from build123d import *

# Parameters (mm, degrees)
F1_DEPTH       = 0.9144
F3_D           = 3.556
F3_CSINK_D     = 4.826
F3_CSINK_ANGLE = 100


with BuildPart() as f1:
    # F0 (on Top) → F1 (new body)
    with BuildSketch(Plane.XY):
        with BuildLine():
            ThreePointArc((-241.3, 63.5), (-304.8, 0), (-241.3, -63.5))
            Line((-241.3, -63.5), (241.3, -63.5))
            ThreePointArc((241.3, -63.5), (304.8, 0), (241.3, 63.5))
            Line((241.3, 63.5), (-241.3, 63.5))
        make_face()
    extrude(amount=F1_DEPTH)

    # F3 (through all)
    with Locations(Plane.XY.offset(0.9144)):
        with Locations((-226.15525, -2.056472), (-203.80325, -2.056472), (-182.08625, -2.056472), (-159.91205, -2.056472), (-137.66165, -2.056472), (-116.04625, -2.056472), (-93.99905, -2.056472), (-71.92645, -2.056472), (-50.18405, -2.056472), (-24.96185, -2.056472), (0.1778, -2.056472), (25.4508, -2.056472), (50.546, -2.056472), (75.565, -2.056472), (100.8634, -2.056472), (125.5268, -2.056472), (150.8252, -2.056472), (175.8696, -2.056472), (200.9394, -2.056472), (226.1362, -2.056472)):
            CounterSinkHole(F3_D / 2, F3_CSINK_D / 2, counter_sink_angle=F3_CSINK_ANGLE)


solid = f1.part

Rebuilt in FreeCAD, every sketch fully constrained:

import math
import FreeCAD as App
import Part
import Sketcher
from FreeCAD import Vector
Q = App.Units.Quantity

doc = App.newDocument("Part")
params = doc.addObject("Spreadsheet::Sheet", "Params")
for row, (alias, value) in enumerate([
    ("sketch1_radius", "2.5 in"),
    ("sketch1_width", "19 in"),
    ("pad1_length", "0.036 in"),
    ("sketch2_diameter", "0.14 in"),
    ("hole_diameter", "0.14 in"),
    ("hole_csink_diameter", "0.19 in"),
], start=1):
    params.set(f"A{row}", alias)
    params.set(f"B{row}", "=" + value)
    params.setAlias(f"B{row}", alias)

body = doc.addObject("PartDesign::Body", "Body")

# Sketch on XY plane
sketch1 = body.newObject("Sketcher::SketchObject", "Sketch")
sketch1.AttachmentSupport = (doc.getObject("XY_Plane"), [""])
sketch1.MapMode = "FlatFace"
sketch1.addGeometry(Part.ArcOfCircle(Part.Circle(Vector(-241.3, 0, 0), Vector(0, 0, 1), 63.5), math.radians(90), math.radians(270)), False)
sketch1.addGeometry(Part.LineSegment(Vector(-241.3, -63.5, 0), Vector(241.3, -63.5, 0)), False)
sketch1.addGeometry(Part.ArcOfCircle(Part.Circle(Vector(241.3, 0, 0), Vector(0, 0, 1), 63.5), math.radians(-90), math.radians(90)), False)
sketch1.addGeometry(Part.LineSegment(Vector(241.3, 63.5, 0), Vector(-241.3, 63.5, 0)), False)
sketch1.addConstraint(Sketcher.Constraint("Tangent", 0, 2, 1, 1))
sketch1.addConstraint(Sketcher.Constraint("Tangent", 1, 2, 2, 1))
sketch1.addConstraint(Sketcher.Constraint("Tangent", 2, 2, 3, 1))
sketch1.addConstraint(Sketcher.Constraint("Tangent", 3, 2, 0, 1))
sketch1.addConstraint(Sketcher.Constraint("Horizontal", 1))
sketch1.addConstraint(Sketcher.Constraint("Horizontal", 3))
sketch1.addConstraint(Sketcher.Constraint("Symmetric", 0, 3, 2, 3, -1, 1))
sketch1.addConstraint(Sketcher.Constraint("Radius", 0, Q("2.5 in")))
sketch1.addConstraint(Sketcher.Constraint("DistanceX", 1, 1, 1, 2, Q("19 in")))
sketch1.setExpression("Constraints[7]", "Params.sketch1_radius")
sketch1.setExpression("Constraints[8]", "Params.sketch1_width")
pad1 = body.newObject("PartDesign::Pad", "Pad")
pad1.Profile = sketch1
pad1.setExpression("Length", "Params.pad1_length")

# Sketch on XY plane
sketch2 = body.newObject("Sketcher::SketchObject", "Sketch001")
sketch2.AttachmentSupport = (doc.getObject("XY_Plane"), [""])
sketch2.MapMode = "FlatFace"
sketch2.AttachmentOffset = App.Placement(Vector(0, 0, 0.036 * 25.4), App.Rotation())
sketch2.addGeometry(Part.Circle(Vector(-226.15525, -2.056472, 0), Vector(0, 0, 1), 1.778), False)
sketch2.addGeometry(Part.Circle(Vector(-203.80325, -2.056472, 0), Vector(0, 0, 1), 1.778), False)
sketch2.addGeometry(Part.Circle(Vector(-182.08625, -2.056472, 0), Vector(0, 0, 1), 1.778), False)
sketch2.addGeometry(Part.Circle(Vector(-159.91205, -2.056472, 0), Vector(0, 0, 1), 1.778), False)
sketch2.addGeometry(Part.Circle(Vector(-137.66165, -2.056472, 0), Vector(0, 0, 1), 1.778), False)
sketch2.addGeometry(Part.Circle(Vector(-116.04625, -2.056472, 0), Vector(0, 0, 1), 1.778), False)
sketch2.addGeometry(Part.Circle(Vector(-93.99905, -2.056472, 0), Vector(0, 0, 1), 1.778), False)
sketch2.addGeometry(Part.Circle(Vector(-71.92645, -2.056472, 0), Vector(0, 0, 1), 1.778), False)
sketch2.addGeometry(Part.Circle(Vector(-50.18405, -2.056472, 0), Vector(0, 0, 1), 1.778), False)
sketch2.addGeometry(Part.Circle(Vector(-24.96185, -2.056472, 0), Vector(0, 0, 1), 1.778), False)
sketch2.addGeometry(Part.Circle(Vector(0.1778, -2.056472, 0), Vector(0, 0, 1), 1.778), False)
sketch2.addGeometry(Part.Circle(Vector(25.4508, -2.056472, 0), Vector(0, 0, 1), 1.778), False)
sketch2.addGeometry(Part.Circle(Vector(50.546, -2.056472, 0), Vector(0, 0, 1), 1.778), False)
sketch2.addGeometry(Part.Circle(Vector(75.565, -2.056472, 0), Vector(0, 0, 1), 1.778), False)
sketch2.addGeometry(Part.Circle(Vector(100.8634, -2.056472, 0), Vector(0, 0, 1), 1.778), False)
sketch2.addGeometry(Part.Circle(Vector(125.5268, -2.056472, 0), Vector(0, 0, 1), 1.778), False)
sketch2.addGeometry(Part.Circle(Vector(150.8252, -2.056472, 0), Vector(0, 0, 1), 1.778), False)
sketch2.addGeometry(Part.Circle(Vector(175.8696, -2.056472, 0), Vector(0, 0, 1), 1.778), False)
sketch2.addGeometry(Part.Circle(Vector(200.9394, -2.056472, 0), Vector(0, 0, 1), 1.778), False)
sketch2.addGeometry(Part.Circle(Vector(226.1362, -2.056472, 0), Vector(0, 0, 1), 1.778), False)
sketch2.addConstraint(Sketcher.Constraint("Equal", 0, 1))
sketch2.addConstraint(Sketcher.Constraint("Equal", 1, 2))
sketch2.addConstraint(Sketcher.Constraint("Equal", 2, 3))
sketch2.addConstraint(Sketcher.Constraint("Equal", 3, 4))
sketch2.addConstraint(Sketcher.Constraint("Equal", 4, 5))
sketch2.addConstraint(Sketcher.Constraint("Equal", 5, 6))
sketch2.addConstraint(Sketcher.Constraint("Equal", 6, 7))
sketch2.addConstraint(Sketcher.Constraint("Equal", 7, 8))
sketch2.addConstraint(Sketcher.Constraint("Equal", 8, 9))
sketch2.addConstraint(Sketcher.Constraint("Equal", 9, 10))
sketch2.addConstraint(Sketcher.Constraint("Equal", 10, 11))
sketch2.addConstraint(Sketcher.Constraint("Equal", 11, 12))
sketch2.addConstraint(Sketcher.Constraint("Equal", 12, 13))
sketch2.addConstraint(Sketcher.Constraint("Equal", 13, 14))
sketch2.addConstraint(Sketcher.Constraint("Equal", 14, 15))
sketch2.addConstraint(Sketcher.Constraint("Equal", 15, 16))
sketch2.addConstraint(Sketcher.Constraint("Equal", 16, 17))
sketch2.addConstraint(Sketcher.Constraint("Equal", 17, 18))
sketch2.addConstraint(Sketcher.Constraint("Equal", 18, 19))
sketch2.addConstraint(Sketcher.Constraint("Horizontal", 0, 3, 1, 3))
sketch2.addConstraint(Sketcher.Constraint("Horizontal", 1, 3, 2, 3))
sketch2.addConstraint(Sketcher.Constraint("Horizontal", 2, 3, 3, 3))
sketch2.addConstraint(Sketcher.Constraint("Horizontal", 3, 3, 4, 3))
sketch2.addConstraint(Sketcher.Constraint("Horizontal", 4, 3, 5, 3))
sketch2.addConstraint(Sketcher.Constraint("Horizontal", 5, 3, 6, 3))
sketch2.addConstraint(Sketcher.Constraint("Horizontal", 6, 3, 7, 3))
sketch2.addConstraint(Sketcher.Constraint("Horizontal", 7, 3, 8, 3))
sketch2.addConstraint(Sketcher.Constraint("Horizontal", 8, 3, 9, 3))
sketch2.addConstraint(Sketcher.Constraint("Horizontal", 9, 3, 10, 3))
sketch2.addConstraint(Sketcher.Constraint("Horizontal", 10, 3, 11, 3))
sketch2.addConstraint(Sketcher.Constraint("Horizontal", 11, 3, 12, 3))
sketch2.addConstraint(Sketcher.Constraint("Horizontal", 12, 3, 13, 3))
sketch2.addConstraint(Sketcher.Constraint("Horizontal", 13, 3, 14, 3))
sketch2.addConstraint(Sketcher.Constraint("Horizontal", 14, 3, 15, 3))
sketch2.addConstraint(Sketcher.Constraint("Horizontal", 15, 3, 16, 3))
sketch2.addConstraint(Sketcher.Constraint("Horizontal", 16, 3, 17, 3))
sketch2.addConstraint(Sketcher.Constraint("Horizontal", 17, 3, 18, 3))
sketch2.addConstraint(Sketcher.Constraint("Horizontal", 18, 3, 19, 3))
sketch2.addConstraint(Sketcher.Constraint("Diameter", 0, Q("0.14 in")))
sketch2.addConstraint(Sketcher.Constraint("DistanceX", 2, 3, 5, 3, Q("2.6 in")))
sketch2.addConstraint(Sketcher.Constraint("DistanceX", -1, 1, 12, 3, Q("1.99 in")))
sketch2.addConstraint(Sketcher.Constraint("DistanceX", 0, 3, 1, 3, Q("0.88 in")))
sketch2.addConstraint(Sketcher.Constraint("DistanceX", 3, 3, 8, 3, Q("4.32 in")))
sketch2.addConstraint(Sketcher.Constraint("DistanceX", 11, 3, 15, 3, Q("3.94 in")))
sketch2.addConstraint(Sketcher.Constraint("DistanceX", 14, 3, 18, 3, Q("3.94 in")))
sketch2.addConstraint(Sketcher.Constraint("DistanceX", -1, 1, 10, 3, Q("0.007 in")))
sketch2.addConstraint(Sketcher.Constraint("DistanceX", -1, 1, 11, 3, Q("1.002 in")))
sketch2.addConstraint(Sketcher.Constraint("DistanceX", -1, 1, 13, 3, Q("2.975 in")))
sketch2.addConstraint(Sketcher.Constraint("DistanceX", -1, 1, 14, 3, Q("3.971 in")))
sketch2.addConstraint(Sketcher.Constraint("DistanceX", -1, 1, 16, 3, Q("5.938 in")))
sketch2.addConstraint(Sketcher.Constraint("DistanceX", -1, 1, 17, 3, Q("6.924 in")))
sketch2.addConstraint(Sketcher.Constraint("DistanceX", -1, 1, 19, 3, Q("8.903 in")))
sketch2.addConstraint(Sketcher.Constraint("DistanceX", 1, 3, 2, 3, Q("0.855 in")))
sketch2.addConstraint(Sketcher.Constraint("DistanceX", 2, 3, 3, 3, Q("0.873 in")))
sketch2.addConstraint(Sketcher.Constraint("DistanceX", 3, 3, 4, 3, Q("0.876 in")))
sketch2.addConstraint(Sketcher.Constraint("DistanceX", 5, 3, 6, 3, Q("0.868 in")))
sketch2.addConstraint(Sketcher.Constraint("DistanceX", 6, 3, 7, 3, Q("0.869 in")))
sketch2.addConstraint(Sketcher.Constraint("DistanceX", 8, 3, 9, 3, Q("0.993 in")))
sketch2.addConstraint(Sketcher.Constraint("DistanceX", 0, 3, -1, 1, 226.15525))
sketch2.addConstraint(Sketcher.Constraint("DistanceY", 0, 3, -1, 1, 2.056472))
sketch2.setExpression("Constraints[38]", "Params.sketch2_diameter")
doc.recompute()
hole = body.newObject("PartDesign::Hole", "Hole")
hole.Profile = sketch2
hole.ThreadType = "None"
hole.setExpression("Diameter", "Params.hole_diameter")
hole.DepthType = "ThroughAll"
hole.HoleCutType = "Countersink"
hole.setExpression("HoleCutDiameter", "Params.hole_csink_diameter")
hole.HoleCutCountersinkAngle = 100

doc.recompute()
